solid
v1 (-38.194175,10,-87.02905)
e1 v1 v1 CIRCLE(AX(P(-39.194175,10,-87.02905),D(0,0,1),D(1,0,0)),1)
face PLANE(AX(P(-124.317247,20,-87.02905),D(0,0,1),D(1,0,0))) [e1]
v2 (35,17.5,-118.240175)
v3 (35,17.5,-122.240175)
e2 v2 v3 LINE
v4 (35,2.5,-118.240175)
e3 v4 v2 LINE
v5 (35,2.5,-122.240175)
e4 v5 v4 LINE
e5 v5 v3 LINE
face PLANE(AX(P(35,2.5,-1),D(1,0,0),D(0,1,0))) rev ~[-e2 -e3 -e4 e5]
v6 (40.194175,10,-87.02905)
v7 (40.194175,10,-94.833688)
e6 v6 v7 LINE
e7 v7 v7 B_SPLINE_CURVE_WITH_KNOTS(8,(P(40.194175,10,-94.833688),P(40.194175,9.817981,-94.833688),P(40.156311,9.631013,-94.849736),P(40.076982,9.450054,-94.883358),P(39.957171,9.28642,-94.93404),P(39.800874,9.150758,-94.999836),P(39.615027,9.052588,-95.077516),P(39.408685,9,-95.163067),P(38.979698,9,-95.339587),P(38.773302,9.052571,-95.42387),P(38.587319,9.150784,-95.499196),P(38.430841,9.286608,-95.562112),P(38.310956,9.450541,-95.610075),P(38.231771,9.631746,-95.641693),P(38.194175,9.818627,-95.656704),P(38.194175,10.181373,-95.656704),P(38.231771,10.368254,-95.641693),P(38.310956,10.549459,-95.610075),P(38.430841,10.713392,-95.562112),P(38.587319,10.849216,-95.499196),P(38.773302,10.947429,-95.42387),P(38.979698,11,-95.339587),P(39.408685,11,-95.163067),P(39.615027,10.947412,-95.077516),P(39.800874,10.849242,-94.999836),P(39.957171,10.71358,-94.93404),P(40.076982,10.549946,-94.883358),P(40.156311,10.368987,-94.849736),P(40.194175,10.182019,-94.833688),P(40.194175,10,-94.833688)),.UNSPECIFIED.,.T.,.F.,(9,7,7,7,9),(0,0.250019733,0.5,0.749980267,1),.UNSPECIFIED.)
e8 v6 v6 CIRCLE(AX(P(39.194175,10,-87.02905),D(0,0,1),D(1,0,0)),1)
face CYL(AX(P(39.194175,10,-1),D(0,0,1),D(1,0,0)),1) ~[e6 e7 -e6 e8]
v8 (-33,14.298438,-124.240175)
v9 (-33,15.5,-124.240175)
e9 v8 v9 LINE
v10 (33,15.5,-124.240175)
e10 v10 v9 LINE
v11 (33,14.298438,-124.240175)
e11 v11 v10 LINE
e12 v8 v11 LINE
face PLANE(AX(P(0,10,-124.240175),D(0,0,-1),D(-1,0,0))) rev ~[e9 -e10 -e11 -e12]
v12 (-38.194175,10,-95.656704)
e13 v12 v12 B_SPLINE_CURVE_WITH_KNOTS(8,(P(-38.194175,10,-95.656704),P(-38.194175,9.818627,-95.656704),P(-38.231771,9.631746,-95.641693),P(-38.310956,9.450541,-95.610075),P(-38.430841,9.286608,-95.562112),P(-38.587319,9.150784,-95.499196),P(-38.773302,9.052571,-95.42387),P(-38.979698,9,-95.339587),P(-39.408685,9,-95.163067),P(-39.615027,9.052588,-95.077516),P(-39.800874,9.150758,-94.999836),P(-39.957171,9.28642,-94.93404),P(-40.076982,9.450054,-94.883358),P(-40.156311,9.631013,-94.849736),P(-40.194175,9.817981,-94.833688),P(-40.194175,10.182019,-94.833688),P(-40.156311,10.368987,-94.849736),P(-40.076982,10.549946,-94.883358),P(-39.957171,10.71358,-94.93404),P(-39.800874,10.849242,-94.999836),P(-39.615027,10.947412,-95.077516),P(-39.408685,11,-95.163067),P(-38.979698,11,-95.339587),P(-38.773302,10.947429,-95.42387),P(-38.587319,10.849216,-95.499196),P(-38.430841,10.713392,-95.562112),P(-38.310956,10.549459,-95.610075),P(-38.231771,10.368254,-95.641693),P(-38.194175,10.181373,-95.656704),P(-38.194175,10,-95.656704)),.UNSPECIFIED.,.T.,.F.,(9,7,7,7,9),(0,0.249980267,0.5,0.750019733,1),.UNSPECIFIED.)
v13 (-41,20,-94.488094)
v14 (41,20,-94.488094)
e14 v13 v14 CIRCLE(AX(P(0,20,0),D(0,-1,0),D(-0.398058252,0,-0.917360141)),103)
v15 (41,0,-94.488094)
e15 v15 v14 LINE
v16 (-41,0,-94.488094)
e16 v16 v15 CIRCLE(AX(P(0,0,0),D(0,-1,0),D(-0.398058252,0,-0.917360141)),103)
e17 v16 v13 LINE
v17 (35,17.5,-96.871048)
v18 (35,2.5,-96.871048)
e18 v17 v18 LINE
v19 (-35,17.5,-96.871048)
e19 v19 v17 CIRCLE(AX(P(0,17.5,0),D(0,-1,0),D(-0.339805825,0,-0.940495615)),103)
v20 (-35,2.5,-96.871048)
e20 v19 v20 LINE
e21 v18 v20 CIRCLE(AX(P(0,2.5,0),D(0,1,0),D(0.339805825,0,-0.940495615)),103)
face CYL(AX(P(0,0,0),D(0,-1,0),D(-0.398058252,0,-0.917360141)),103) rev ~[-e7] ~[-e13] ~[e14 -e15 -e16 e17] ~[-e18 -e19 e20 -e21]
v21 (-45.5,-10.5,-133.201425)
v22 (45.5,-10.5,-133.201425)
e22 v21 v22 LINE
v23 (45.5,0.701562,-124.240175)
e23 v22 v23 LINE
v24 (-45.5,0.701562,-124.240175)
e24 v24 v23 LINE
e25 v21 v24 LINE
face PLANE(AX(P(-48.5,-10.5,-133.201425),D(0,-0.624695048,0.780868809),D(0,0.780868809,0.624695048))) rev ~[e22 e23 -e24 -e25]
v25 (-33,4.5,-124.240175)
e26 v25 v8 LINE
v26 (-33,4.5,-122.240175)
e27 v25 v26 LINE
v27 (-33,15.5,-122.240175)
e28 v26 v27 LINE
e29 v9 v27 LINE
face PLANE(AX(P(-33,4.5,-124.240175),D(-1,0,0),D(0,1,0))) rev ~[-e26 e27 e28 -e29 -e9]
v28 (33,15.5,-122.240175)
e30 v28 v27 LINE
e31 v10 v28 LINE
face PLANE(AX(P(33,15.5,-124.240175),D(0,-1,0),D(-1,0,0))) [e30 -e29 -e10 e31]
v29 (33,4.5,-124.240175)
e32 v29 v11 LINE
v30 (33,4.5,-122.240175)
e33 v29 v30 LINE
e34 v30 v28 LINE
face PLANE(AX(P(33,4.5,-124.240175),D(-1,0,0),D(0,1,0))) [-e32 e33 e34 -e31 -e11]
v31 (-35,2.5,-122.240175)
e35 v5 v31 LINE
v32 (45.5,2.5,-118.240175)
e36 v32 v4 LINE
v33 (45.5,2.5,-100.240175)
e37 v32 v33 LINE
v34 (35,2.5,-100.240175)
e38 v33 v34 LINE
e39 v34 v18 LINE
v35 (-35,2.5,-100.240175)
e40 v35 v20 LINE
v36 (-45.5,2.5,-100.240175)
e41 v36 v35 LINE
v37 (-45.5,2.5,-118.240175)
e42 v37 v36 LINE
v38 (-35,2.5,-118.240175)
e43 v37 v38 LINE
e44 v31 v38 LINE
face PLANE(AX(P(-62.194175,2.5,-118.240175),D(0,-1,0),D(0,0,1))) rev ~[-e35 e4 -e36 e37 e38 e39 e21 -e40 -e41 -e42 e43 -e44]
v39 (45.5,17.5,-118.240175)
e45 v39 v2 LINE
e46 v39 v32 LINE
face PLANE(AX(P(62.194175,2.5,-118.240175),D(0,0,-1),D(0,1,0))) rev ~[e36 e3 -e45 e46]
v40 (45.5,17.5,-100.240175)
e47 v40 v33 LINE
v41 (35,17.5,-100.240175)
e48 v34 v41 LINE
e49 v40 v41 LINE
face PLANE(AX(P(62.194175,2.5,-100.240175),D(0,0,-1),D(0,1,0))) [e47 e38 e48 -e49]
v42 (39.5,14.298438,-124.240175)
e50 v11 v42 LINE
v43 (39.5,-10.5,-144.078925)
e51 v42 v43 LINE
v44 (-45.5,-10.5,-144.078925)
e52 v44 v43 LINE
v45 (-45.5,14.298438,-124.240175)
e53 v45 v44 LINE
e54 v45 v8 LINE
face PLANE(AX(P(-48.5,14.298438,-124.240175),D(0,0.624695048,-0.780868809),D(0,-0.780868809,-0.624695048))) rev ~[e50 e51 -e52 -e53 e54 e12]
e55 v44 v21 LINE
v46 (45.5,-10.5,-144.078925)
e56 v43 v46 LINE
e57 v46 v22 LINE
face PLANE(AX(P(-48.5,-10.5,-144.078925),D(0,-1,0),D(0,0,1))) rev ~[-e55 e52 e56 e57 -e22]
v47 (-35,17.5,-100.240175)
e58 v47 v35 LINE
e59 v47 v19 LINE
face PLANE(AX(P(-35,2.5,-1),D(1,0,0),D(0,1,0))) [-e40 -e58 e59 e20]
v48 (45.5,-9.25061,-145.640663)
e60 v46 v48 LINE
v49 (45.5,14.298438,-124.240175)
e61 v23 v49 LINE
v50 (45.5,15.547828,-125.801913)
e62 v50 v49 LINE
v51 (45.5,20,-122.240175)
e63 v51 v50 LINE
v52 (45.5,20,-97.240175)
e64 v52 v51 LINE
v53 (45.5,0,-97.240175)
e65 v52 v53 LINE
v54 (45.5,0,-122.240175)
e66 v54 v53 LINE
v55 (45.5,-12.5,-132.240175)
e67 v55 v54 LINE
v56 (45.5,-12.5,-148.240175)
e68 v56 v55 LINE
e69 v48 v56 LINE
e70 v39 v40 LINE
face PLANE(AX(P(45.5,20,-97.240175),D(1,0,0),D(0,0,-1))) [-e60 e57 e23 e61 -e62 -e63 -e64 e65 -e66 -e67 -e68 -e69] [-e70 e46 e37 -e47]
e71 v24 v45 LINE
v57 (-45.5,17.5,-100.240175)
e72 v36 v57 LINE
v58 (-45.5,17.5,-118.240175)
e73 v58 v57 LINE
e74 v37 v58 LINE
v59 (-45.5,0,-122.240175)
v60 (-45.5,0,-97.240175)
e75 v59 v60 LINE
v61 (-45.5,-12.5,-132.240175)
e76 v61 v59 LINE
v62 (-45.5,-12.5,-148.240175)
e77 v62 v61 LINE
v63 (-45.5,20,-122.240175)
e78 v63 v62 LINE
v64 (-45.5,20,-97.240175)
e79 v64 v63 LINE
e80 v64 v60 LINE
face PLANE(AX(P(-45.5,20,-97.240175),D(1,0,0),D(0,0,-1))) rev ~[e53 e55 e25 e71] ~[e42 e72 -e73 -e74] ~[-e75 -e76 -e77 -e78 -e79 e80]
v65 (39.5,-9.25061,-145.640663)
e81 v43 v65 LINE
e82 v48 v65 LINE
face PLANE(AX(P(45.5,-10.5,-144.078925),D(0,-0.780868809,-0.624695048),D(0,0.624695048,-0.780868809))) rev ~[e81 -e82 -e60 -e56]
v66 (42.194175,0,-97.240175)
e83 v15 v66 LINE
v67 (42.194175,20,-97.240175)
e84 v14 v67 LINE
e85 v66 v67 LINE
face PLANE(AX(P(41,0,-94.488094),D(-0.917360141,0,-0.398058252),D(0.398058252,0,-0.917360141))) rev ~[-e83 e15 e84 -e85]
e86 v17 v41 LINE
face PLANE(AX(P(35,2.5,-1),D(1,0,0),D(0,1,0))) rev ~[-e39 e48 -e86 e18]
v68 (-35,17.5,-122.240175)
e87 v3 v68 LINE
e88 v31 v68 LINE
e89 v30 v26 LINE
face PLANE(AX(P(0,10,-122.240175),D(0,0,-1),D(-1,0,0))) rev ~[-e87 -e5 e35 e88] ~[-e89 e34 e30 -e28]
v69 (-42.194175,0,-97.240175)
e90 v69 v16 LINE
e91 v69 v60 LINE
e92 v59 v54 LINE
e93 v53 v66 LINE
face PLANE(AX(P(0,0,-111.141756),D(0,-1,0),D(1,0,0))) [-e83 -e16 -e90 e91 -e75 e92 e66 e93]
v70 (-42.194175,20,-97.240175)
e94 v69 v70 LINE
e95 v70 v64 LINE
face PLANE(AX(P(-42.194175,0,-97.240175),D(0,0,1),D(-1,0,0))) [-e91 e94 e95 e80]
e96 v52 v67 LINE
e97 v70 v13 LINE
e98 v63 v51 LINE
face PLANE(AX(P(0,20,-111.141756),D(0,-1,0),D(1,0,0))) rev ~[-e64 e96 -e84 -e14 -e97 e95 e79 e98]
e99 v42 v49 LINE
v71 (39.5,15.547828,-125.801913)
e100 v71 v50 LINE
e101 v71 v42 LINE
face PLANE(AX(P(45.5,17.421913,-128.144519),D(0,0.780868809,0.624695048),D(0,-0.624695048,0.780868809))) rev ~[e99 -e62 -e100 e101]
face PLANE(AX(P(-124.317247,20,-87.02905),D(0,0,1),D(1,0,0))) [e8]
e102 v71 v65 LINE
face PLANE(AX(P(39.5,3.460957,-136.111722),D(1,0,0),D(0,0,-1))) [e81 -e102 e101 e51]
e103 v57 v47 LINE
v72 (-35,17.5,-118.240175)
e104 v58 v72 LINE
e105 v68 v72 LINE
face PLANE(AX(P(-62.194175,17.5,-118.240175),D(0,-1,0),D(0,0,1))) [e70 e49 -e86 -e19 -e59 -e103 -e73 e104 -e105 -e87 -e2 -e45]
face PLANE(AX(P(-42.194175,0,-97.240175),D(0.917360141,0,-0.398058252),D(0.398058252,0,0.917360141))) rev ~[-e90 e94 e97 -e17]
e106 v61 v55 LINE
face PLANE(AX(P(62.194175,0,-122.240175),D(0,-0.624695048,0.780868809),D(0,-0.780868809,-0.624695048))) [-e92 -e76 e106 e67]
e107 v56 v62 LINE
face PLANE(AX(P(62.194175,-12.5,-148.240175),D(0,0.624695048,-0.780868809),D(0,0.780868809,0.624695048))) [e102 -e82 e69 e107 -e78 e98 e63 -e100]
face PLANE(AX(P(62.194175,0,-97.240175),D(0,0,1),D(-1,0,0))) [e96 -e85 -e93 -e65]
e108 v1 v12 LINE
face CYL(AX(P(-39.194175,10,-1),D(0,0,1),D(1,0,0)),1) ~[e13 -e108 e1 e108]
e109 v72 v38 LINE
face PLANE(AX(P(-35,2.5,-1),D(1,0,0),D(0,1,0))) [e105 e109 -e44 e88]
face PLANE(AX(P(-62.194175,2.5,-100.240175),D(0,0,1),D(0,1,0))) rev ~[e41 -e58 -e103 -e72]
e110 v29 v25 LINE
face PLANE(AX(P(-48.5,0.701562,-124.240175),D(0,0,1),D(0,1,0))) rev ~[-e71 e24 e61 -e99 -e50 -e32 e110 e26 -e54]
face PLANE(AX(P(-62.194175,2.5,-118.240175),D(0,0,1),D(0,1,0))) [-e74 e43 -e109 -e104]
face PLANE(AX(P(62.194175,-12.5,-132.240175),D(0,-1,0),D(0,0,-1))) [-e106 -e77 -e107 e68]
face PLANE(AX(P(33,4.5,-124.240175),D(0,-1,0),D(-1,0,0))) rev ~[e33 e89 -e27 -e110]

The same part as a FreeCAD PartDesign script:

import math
import FreeCAD as App
import Part
import Sketcher

doc = App.newDocument("Part")
body = doc.addObject("PartDesign::Body", "Body")

sketch1 = body.newObject("Sketcher::SketchObject", "Sketch")
sketch1.AttachmentSupport = (doc.getObject("XZ_Plane"), [""])
sketch1.MapMode = "FlatFace"
sketch1.addGeometry(Part.LineSegment(App.Vector(-42.2, -97.2, 0), App.Vector(-41, -94.5, 0)), False)
sketch1.addGeometry(Part.ArcOfCircle(Part.Circle(App.Vector(0, 0, 0), App.Vector(0, 0, 1), 103), math.radians(-113), math.radians(-67)), False)
sketch1.addGeometry(Part.LineSegment(App.Vector(41, -94.5, 0), App.Vector(42.2, -97.2, 0)), False)
sketch1.addGeometry(Part.ArcOfCircle(Part.Circle(App.Vector(0, 0, 0), App.Vector(0, 0, 1), 106), math.radians(-113), math.radians(-67)), False)
sketch1.addConstraint(Sketcher.Constraint("Coincident", 0, 2, 1, 1))
sketch1.addConstraint(Sketcher.Constraint("Coincident", 1, 2, 2, 1))
sketch1.addConstraint(Sketcher.Constraint("Coincident", 2, 2, 3, 2))
sketch1.addConstraint(Sketcher.Constraint("Coincident", 3, 1, 0, 1))
sketch1.addConstraint(Sketcher.Constraint("Coincident", 1, 3, -1, 1))
sketch1.addConstraint(Sketcher.Constraint("Coincident", 3, 3, -1, 1))
sketch1.addConstraint(Sketcher.Constraint("Horizontal", 0, 2, 1, 2))
sketch1.addConstraint(Sketcher.Constraint("Horizontal", 2, 2, 3, 1))
sketch1.addConstraint(Sketcher.Constraint("Radius", 1, 103.0))
sketch1.addConstraint(Sketcher.Constraint("Radius", 3, 106.0))
sketch1.addConstraint(Sketcher.Constraint("DistanceX", 0, 2, -1, 1, 41.0))
sketch1.addConstraint(Sketcher.Constraint("DistanceY", 2, 2, 1, 2, 2.75208))
pad1 = body.newObject("PartDesign::Pad", "Pad")
pad1.Profile = sketch1
pad1.Length = 20
pad1.Reversed = True
body2 = doc.addObject("PartDesign::Body", "Body001")

sketch2 = body2.newObject("Sketcher::SketchObject", "Sketch001")
sketch2.AttachmentSupport = (doc.getObject("XZ_Plane001"), [""])
sketch2.MapMode = "FlatFace"
sketch2.addGeometry(Part.LineSegment(App.Vector(-100, 0, 0), App.Vector(-100, -1, 0)), False)
sketch2.addGeometry(Part.LineSegment(App.Vector(-100, -1, 0), App.Vector(100, -1, 0)), False)
sketch2.addGeometry(Part.LineSegment(App.Vector(100, -1, 0), App.Vector(100, 0, 0)), False)
sketch2.addGeometry(Part.LineSegment(App.Vector(100, 0, 0), App.Vector(-100, 0, 0)), False)
sketch2.addConstraint(Sketcher.Constraint("Coincident", 0, 2, 1, 1))
sketch2.addConstraint(Sketcher.Constraint("Coincident", 1, 2, 2, 1))
sketch2.addConstraint(Sketcher.Constraint("Coincident", 2, 2, 3, 1))
sketch2.addConstraint(Sketcher.Constraint("Coincident", 3, 2, 0, 1))
sketch2.addConstraint(Sketcher.Constraint("Vertical", 0))
sketch2.addConstraint(Sketcher.Constraint("Horizontal", 1))
sketch2.addConstraint(Sketcher.Constraint("Vertical", 2))
sketch2.addConstraint(Sketcher.Constraint("Horizontal", 3))
sketch2.addConstraint(Sketcher.Constraint("Symmetric", 2, 2, 3, 2, -1, 1))
sketch2.addConstraint(Sketcher.Constraint("DistanceX", 1, 1, 1, 2, 200.0))
sketch2.addConstraint(Sketcher.Constraint("DistanceY", 0, 2, 0, 1, 1.0))
pad2 = body2.newObject("PartDesign::Pad", "Pad001")
pad2.Profile = sketch2
pad2.Length = 20
pad2.Reversed = True
body.AllowCompound = True
doc.recompute()

boolean = body.newObject("PartDesign::Boolean", "Boolean")
boolean.Type = "Fuse"
boolean.addObjects([body2])

sketch3 = body.newObject("Sketcher::SketchObject", "Sketch002")
sketch3.AttachmentSupport = (doc.getObject("XY_Plane"), [""])
sketch3.MapMode = "FlatFace"
sketch3.AttachmentOffset = App.Placement(App.Vector(0, 0, -1), App.Rotation())
sketch3.addGeometry(Part.Circle(App.Vector(39.2, 10, 0), App.Vector(0, 0, 1), 1), False)
sketch3.addGeometry(Part.Circle(App.Vector(-39.2, 10, 0), App.Vector(0, 0, 1), 1), False)
sketch3.addConstraint(Sketcher.Constraint("Equal", 0, 1))
sketch3.addConstraint(Sketcher.Constraint("Symmetric", 0, 3, 1, 3, -2))
sketch3.addConstraint(Sketcher.Constraint("Diameter", 0, 2.0))
sketch3.addConstraint(Sketcher.Constraint("DistanceY", -1, 1, 0, 3, 10.0))
sketch3.addConstraint(Sketcher.Constraint("DistanceX", 1, 3, 0, 3, 78.38835))
pad3 = body.newObject("PartDesign::Pad", "Pad002")
pad3.Profile = sketch3
pad3.Length = 100
pad3.Reversed = True

sketch4 = body.newObject("Sketcher::SketchObject", "Sketch003")
sketch4.AttachmentSupport = (doc.getObject("XY_Plane"), [""])
sketch4.MapMode = "FlatFace"
sketch4.AttachmentOffset = App.Placement(App.Vector(0, 0, -1), App.Rotation())
sketch4.addGeometry(Part.LineSegment(App.Vector(35, 18, 0), App.Vector(35, 2, 0)), False)
sketch4.addGeometry(Part.LineSegment(App.Vector(35, 2, 0), App.Vector(-35, 2, 0)), False)
sketch4.addGeometry(Part.LineSegment(App.Vector(-35, 2, 0), App.Vector(-35, 18, 0)), False)
sketch4.addGeometry(Part.LineSegment(App.Vector(-35, 18, 0), App.Vector(35, 18, 0)), False)
sketch4.addConstraint(Sketcher.Constraint("Coincident", 0, 2, 1, 1))
sketch4.addConstraint(Sketcher.Constraint("Coincident", 1, 2, 2, 1))
sketch4.addConstraint(Sketcher.Constraint("Coincident", 2, 2, 3, 1))
sketch4.addConstraint(Sketcher.Constraint("Coincident", 3, 2, 0, 1))
sketch4.addConstraint(Sketcher.Constraint("Vertical", 0))
sketch4.addConstraint(Sketcher.Constraint("Horizontal", 1))
sketch4.addConstraint(Sketcher.Constraint("Vertical", 2))
sketch4.addConstraint(Sketcher.Constraint("Horizontal", 3))
sketch4.addConstraint(Sketcher.Constraint("DistanceX", 1, 2, 1, 1, 70.0))
sketch4.addConstraint(Sketcher.Constraint("DistanceY", 0, 2, 0, 1, 15.0))
sketch4.addConstraint(Sketcher.Constraint("DistanceX", -1, 1, 0, 2, 35.0))
sketch4.addConstraint(Sketcher.Constraint("DistanceY", -1, 1, 0, 2, 2.5))
pocket1 = body.newObject("PartDesign::Pocket", "Pocket")
pocket1.Profile = sketch4
pocket1.Length = 150

sketch5 = body.newObject("Sketcher::SketchObject", "Sketch004")
sketch5.AttachmentSupport = (doc.getObject("XZ_Plane"), [""])
sketch5.MapMode = "FlatFace"
sketch5.AttachmentOffset = App.Placement(App.Vector(0, 0, 130), App.Rotation())
sketch5.addGeometry(Part.LineSegment(App.Vector(-49, -113, 0), App.Vector(-42, -97, 0)), False)
sketch5.addGeometry(Part.ArcOfCircle(Part.Circle(App.Vector(0, 0, 0), App.Vector(0, 0, 1), 106), math.radians(-113), math.radians(-67)), False)
sketch5.addGeometry(Part.LineSegment(App.Vector(42, -97, 0), App.Vector(52, -112, 0)), False)
sketch5.addGeometry(Part.ArcOfCircle(Part.Circle(App.Vector(0, 0, 0), App.Vector(0, 0, 1), 123), math.radians(-113), math.radians(-65)), False)
sketch5.addConstraint(Sketcher.Constraint("Coincident", 0, 2, 1, 1))
sketch5.addConstraint(Sketcher.Constraint("Coincident", 1, 2, 2, 1))
sketch5.addConstraint(Sketcher.Constraint("Coincident", 2, 2, 3, 2))
sketch5.addConstraint(Sketcher.Constraint("Coincident", 3, 1, 0, 1))
sketch5.addConstraint(Sketcher.Constraint("Coincident", 1, 3, -1, 1))
sketch5.addConstraint(Sketcher.Constraint("Coincident", 3, 3, -1, 1))
sketch5.addConstraint(Sketcher.Constraint("Horizontal", 0, 2, 1, 2))
sketch5.addConstraint(Sketcher.Constraint("Radius", 1, 106.0))
sketch5.addConstraint(Sketcher.Constraint("Radius", 3, 123.498831))
sketch5.addConstraint(Sketcher.Constraint("DistanceX", 3, 1, 1, 2, 91.252102))
sketch5.addConstraint(Sketcher.Constraint("Distance", 2, 17.677209))
sketch5.addConstraint(Sketcher.Constraint("DistanceX", -1, 1, 2, 2, 51.628142))
pocket2 = body.newObject("PartDesign::Pocket", "Pocket001")
pocket2.Profile = sketch5
pocket2.Length = 150

sketch6 = body.newObject("Sketcher::SketchObject", "Sketch005")
sketch6.AttachmentSupport = (doc.getObject("XZ_Plane"), [""])
sketch6.MapMode = "FlatFace"
sketch6.addGeometry(Part.LineSegment(App.Vector(-42, -97, 0), App.Vector(-62, -97, 0)), False)
sketch6.addGeometry(Part.LineSegment(App.Vector(-62, -97, 0), App.Vector(-62, -122, 0)), False)
sketch6.addGeometry(Part.LineSegment(App.Vector(-62, -122, 0), App.Vector(62, -122, 0)), False)
sketch6.addGeometry(Part.LineSegment(App.Vector(62, -122, 0), App.Vector(62, -97, 0)), False)
sketch6.addGeometry(Part.LineSegment(App.Vector(62, -97, 0), App.Vector(42, -97, 0)), False)
sketch6.addGeometry(Part.ArcOfCircle(Part.Circle(App.Vector(0, 0, 0), App.Vector(0, 0, 1), 106), math.radians(-113), math.radians(-67)), False)
sketch6.addConstraint(Sketcher.Constraint("Coincident", 0, 2, 1, 1))
sketch6.addConstraint(Sketcher.Constraint("Coincident", 1, 2, 2, 1))
sketch6.addConstraint(Sketcher.Constraint("Coincident", 2, 2, 3, 1))
sketch6.addConstraint(Sketcher.Constraint("Coincident", 3, 2, 4, 1))
sketch6.addConstraint(Sketcher.Constraint("Coincident", 4, 2, 5, 2))
sketch6.addConstraint(Sketcher.Constraint("Coincident", 5, 1, 0, 1))
sketch6.addConstraint(Sketcher.Constraint("Horizontal", 0))
sketch6.addConstraint(Sketcher.Constraint("Vertical", 1))
sketch6.addConstraint(Sketcher.Constraint("Horizontal", 2))
sketch6.addConstraint(Sketcher.Constraint("Vertical", 3))
sketch6.addConstraint(Sketcher.Constraint("Horizontal", 4))
sketch6.addConstraint(Sketcher.Constraint("Coincident", 5, 3, -1, 1))
sketch6.addConstraint(Sketcher.Constraint("Symmetric", 0, 2, 3, 2, -2))
sketch6.addConstraint(Sketcher.Constraint("Radius", 5, 106.0))
sketch6.addConstraint(Sketcher.Constraint("DistanceX", 0, 2, 0, 1, 20.0))
sketch6.addConstraint(Sketcher.Constraint("DistanceY", 1, 2, 1, 1, 25.0))
sketch6.addConstraint(Sketcher.Constraint("DistanceX", 2, 1, 2, 2, 124.38835))
pad4 = body.newObject("PartDesign::Pad", "Pad003")
pad4.Profile = sketch6
pad4.Length = 20
pad4.Reversed = True

sketch7 = body.newObject("Sketcher::SketchObject", "Sketch006")
sketch7.AttachmentSupport = (doc.getObject("XY_Plane"), [""])
sketch7.MapMode = "FlatFace"
sketch7.AttachmentOffset = App.Placement(App.Vector(0, 0, -122.240175), App.Rotation())
sketch7.addGeometry(Part.LineSegment(App.Vector(35, 18, 0), App.Vector(35, 2, 0)), False)
sketch7.addGeometry(Part.LineSegment(App.Vector(35, 2, 0), App.Vector(-35, 2, 0)), False)
sketch7.addGeometry(Part.LineSegment(App.Vector(-35, 2, 0), App.Vector(-35, 18, 0)), False)
sketch7.addGeometry(Part.LineSegment(App.Vector(-35, 18, 0), App.Vector(35, 18, 0)), False)
sketch7.addConstraint(Sketcher.Constraint("Coincident", 0, 2, 1, 1))
sketch7.addConstraint(Sketcher.Constraint("Coincident", 1, 2, 2, 1))
sketch7.addConstraint(Sketcher.Constraint("Coincident", 2, 2, 3, 1))
sketch7.addConstraint(Sketcher.Constraint("Coincident", 3, 2, 0, 1))
sketch7.addConstraint(Sketcher.Constraint("Vertical", 0))
sketch7.addConstraint(Sketcher.Constraint("Horizontal", 1))
sketch7.addConstraint(Sketcher.Constraint("Vertical", 2))
sketch7.addConstraint(Sketcher.Constraint("Horizontal", 3))
sketch7.addConstraint(Sketcher.Constraint("DistanceX", 1, 2, 1, 1, 70.0))
sketch7.addConstraint(Sketcher.Constraint("DistanceY", 0, 2, 0, 1, 15.0))
sketch7.addConstraint(Sketcher.Constraint("DistanceX", -1, 1, 0, 2, 35.0))
sketch7.addConstraint(Sketcher.Constraint("DistanceY", -1, 1, 0, 2, 2.5))
pocket3 = body.newObject("PartDesign::Pocket", "Pocket002")
pocket3.Profile = sketch7
pocket3.Length = 50
pocket3.Reversed = True

sketch8 = body.newObject("Sketcher::SketchObject", "Sketch007")
sketch8.AttachmentSupport = (doc.getObject("YZ_Plane"), [""])
sketch8.MapMode = "FlatFace"
sketch8.AttachmentOffset = App.Placement(App.Vector(0, 0, -62.194175), App.Rotation())
sketch8.addGeometry(Part.LineSegment(App.Vector(18, -118, 0), App.Vector(2, -118, 0)), False)
sketch8.addGeometry(Part.LineSegment(App.Vector(2, -118, 0), App.Vector(2, -100, 0)), False)
sketch8.addGeometry(Part.LineSegment(App.Vector(2, -100, 0), App.Vector(18, -100, 0)), False)
sketch8.addGeometry(Part.LineSegment(App.Vector(18, -100, 0), App.Vector(18, -118, 0)), False)
sketch8.addConstraint(Sketcher.Constraint("Coincident", 0, 2, 1, 1))
sketch8.addConstraint(Sketcher.Constraint("Coincident", 1, 2, 2, 1))
sketch8.addConstraint(Sketcher.Constraint("Coincident", 2, 2, 3, 1))
sketch8.addConstraint(Sketcher.Constraint("Coincident", 3, 2, 0, 1))
sketch8.addConstraint(Sketcher.Constraint("Horizontal", 0))
sketch8.addConstraint(Sketcher.Constraint("Vertical", 1))
sketch8.addConstraint(Sketcher.Constraint("Horizontal", 2))
sketch8.addConstraint(Sketcher.Constraint("Vertical", 3))
sketch8.addConstraint(Sketcher.Constraint("DistanceX", 0, 2, 0, 1, 15.0))
sketch8.addConstraint(Sketcher.Constraint("DistanceY", 1, 1, 1, 2, 18.0))
sketch8.addConstraint(Sketcher.Constraint("DistanceX", -1, 1, 0, 2, 2.5))
sketch8.addConstraint(Sketcher.Constraint("DistanceY", 0, 2, -1, 1, 118.240175))
pocket4 = body.newObject("PartDesign::Pocket", "Pocket003")
pocket4.Profile = sketch8
pocket4.Length = 50
pocket4.Reversed = True

sketch9 = body.newObject("Sketcher::SketchObject", "Sketch008")
sketch9.AttachmentSupport = (doc.getObject("YZ_Plane"), [""])
sketch9.MapMode = "FlatFace"
sketch9.AttachmentOffset = App.Placement(App.Vector(0, 0, 62.194175), App.Rotation())
sketch9.addGeometry(Part.LineSegment(App.Vector(18, -100, 0), App.Vector(2, -100, 0)), False)
sketch9.addGeometry(Part.LineSegment(App.Vector(2, -100, 0), App.Vector(2, -118, 0)), False)
sketch9.addGeometry(Part.LineSegment(App.Vector(2, -118, 0), App.Vector(18, -118, 0)), False)
sketch9.addGeometry(Part.LineSegment(App.Vector(18, -118, 0), App.Vector(18, -100, 0)), False)
sketch9.addConstraint(Sketcher.Constraint("Coincident", 0, 2, 1, 1))
sketch9.addConstraint(Sketcher.Constraint("Coincident", 1, 2, 2, 1))
sketch9.addConstraint(Sketcher.Constraint("Coincident", 2, 2, 3, 1))
sketch9.addConstraint(Sketcher.Constraint("Coincident", 3, 2, 0, 1))
sketch9.addConstraint(Sketcher.Constraint("Horizontal", 0))
sketch9.addConstraint(Sketcher.Constraint("Vertical", 1))
sketch9.addConstraint(Sketcher.Constraint("Horizontal", 2))
sketch9.addConstraint(Sketcher.Constraint("Vertical", 3))
sketch9.addConstraint(Sketcher.Constraint("DistanceX", 0, 2, 0, 1, 15.0))
sketch9.addConstraint(Sketcher.Constraint("DistanceY", 1, 2, 1, 1, 18.0))
sketch9.addConstraint(Sketcher.Constraint("DistanceX", -1, 1, 0, 2, 2.5))
sketch9.addConstraint(Sketcher.Constraint("DistanceY", 0, 2, -1, 1, 100.240175))
pocket5 = body.newObject("PartDesign::Pocket", "Pocket004")
pocket5.Profile = sketch9
pocket5.Length = 50

sketch10 = body.newObject("Sketcher::SketchObject", "Sketch009")
sketch10.AttachmentSupport = (doc.getObject("XZ_Plane"), [""])
sketch10.MapMode = "FlatFace"
sketch10.AttachmentOffset = App.Placement(App.Vector(0, 0, -20), App.Rotation())
sketch10.addGeometry(Part.LineSegment(App.Vector(-124, -87, 0), App.Vector(-124, 14, 0)), False)
sketch10.addGeometry(Part.LineSegment(App.Vector(-124, 14, 0), App.Vector(117, 14, 0)), False)
sketch10.addGeometry(Part.LineSegment(App.Vector(117, 14, 0), App.Vector(117, -87, 0)), False)
sketch10.addGeometry(Part.LineSegment(App.Vector(117, -87, 0), App.Vector(-124, -87, 0)), False)
sketch10.addConstraint(Sketcher.Constraint("Coincident", 0, 2, 1, 1))
sketch10.addConstraint(Sketcher.Constraint("Coincident", 1, 2, 2, 1))
sketch10.addConstraint(Sketcher.Constraint("Coincident", 2, 2, 3, 1))
sketch10.addConstraint(Sketcher.Constraint("Coincident", 3, 2, 0, 1))
sketch10.addConstraint(Sketcher.Constraint("Vertical", 0))
sketch10.addConstraint(Sketcher.Constraint("Horizontal", 1))
sketch10.addConstraint(Sketcher.Constraint("Vertical", 2))
sketch10.addConstraint(Sketcher.Constraint("Horizontal", 3))
sketch10.addConstraint(Sketcher.Constraint("DistanceX", 1, 1, 1, 2, 241.247931))
sketch10.addConstraint(Sketcher.Constraint("DistanceY", 0, 1, 0, 2, 101.321344))
sketch10.addConstraint(Sketcher.Constraint("DistanceY", 2, 2, -1, 1, 87.02905))
sketch10.addConstraint(Sketcher.Constraint("DistanceX", 0, 2, -1, 1, 124.317247))
pocket6 = body.newObject("PartDesign::Pocket", "Pocket005")
pocket6.Profile = sketch10
pocket6.Length = 50
pocket6.Reversed = True

sketch11 = body.newObject("Sketcher::SketchObject", "Sketch010")
sketch11.AttachmentSupport = (doc.getObject("XY_Plane"), [""])
sketch11.MapMode = "FlatFace"
sketch11.AttachmentOffset = App.Placement(App.Vector(0, 0, -122.240175), App.Rotation())
sketch11.addGeometry(Part.LineSegment(App.Vector(62, 32, 0), App.Vector(62, -12, 0)), False)
sketch11.addGeometry(Part.LineSegment(App.Vector(62, -12, 0), App.Vector(-62, -12, 0)), False)
sketch11.addGeometry(Part.LineSegment(App.Vector(-62, -12, 0), App.Vector(-62, 32, 0)), False)
sketch11.addGeometry(Part.LineSegment(App.Vector(-62, 32, 0), App.Vector(62, 32, 0)), False)
sketch11.addConstraint(Sketcher.Constraint("Coincident", 0, 2, 1, 1))
sketch11.addConstraint(Sketcher.Constraint("Coincident", 1, 2, 2, 1))
sketch11.addConstraint(Sketcher.Constraint("Coincident", 2, 2, 3, 1))
sketch11.addConstraint(Sketcher.Constraint("Coincident", 3, 2, 0, 1))
sketch11.addConstraint(Sketcher.Constraint("Vertical", 0))
sketch11.addConstraint(Sketcher.Constraint("Horizontal", 1))
sketch11.addConstraint(Sketcher.Constraint("Vertical", 2))
sketch11.addConstraint(Sketcher.Constraint("Horizontal", 3))
sketch11.addConstraint(Sketcher.Constraint("DistanceY", 0, 2, 0, 1, 45.0))
sketch11.addConstraint(Sketcher.Constraint("DistanceY", 0, 2, -1, 1, 12.5))
sketch11.addConstraint(Sketcher.Constraint("DistanceX", 1, 2, 1, 1, 124.38835))
sketch11.addConstraint(Sketcher.Constraint("DistanceX", -1, 1, 0, 2, 62.194175))
pad5 = body.newObject("PartDesign::Pad", "Pad004")
pad5.Profile = sketch11
pad5.Length = 10
pad5.Reversed = True

sketch12 = body.newObject("Sketcher::SketchObject", "Sketch011")
sketch12.AttachmentSupport = (doc.getObject("YZ_Plane"), [""])
sketch12.MapMode = "FlatFace"
sketch12.AttachmentOffset = App.Placement(App.Vector(0, 0, 62.194175), App.Rotation())
sketch12.addGeometry(Part.LineSegment(App.Vector(20, -122, 0), App.Vector(32, -132, 0)), False)
sketch12.addGeometry(Part.LineSegment(App.Vector(32, -132, 0), App.Vector(32, -122, 0)), False)
sketch12.addGeometry(Part.LineSegment(App.Vector(32, -122, 0), App.Vector(20, -122, 0)), False)
sketch12.addGeometry(Part.LineSegment(App.Vector(-12, -132, 0), App.Vector(0, -122, 0)), False)
sketch12.addGeometry(Part.LineSegment(App.Vector(0, -122, 0), App.Vector(-12, -122, 0)), False)
sketch12.addGeometry(Part.LineSegment(App.Vector(-12, -122, 0), App.Vector(-12, -132, 0)), False)
sketch12.addConstraint(Sketcher.Constraint("Coincident", 0, 2, 1, 1))
sketch12.addConstraint(Sketcher.Constraint("Coincident", 1, 2, 2, 1))
sketch12.addConstraint(Sketcher.Constraint("Coincident", 2, 2, 0, 1))
sketch12.addConstraint(Sketcher.Constraint("Coincident", 3, 2, 4, 1))
sketch12.addConstraint(Sketcher.Constraint("Coincident", 4, 2, 5, 1))
sketch12.addConstraint(Sketcher.Constraint("Coincident", 5, 2, 3, 1))
sketch12.addConstraint(Sketcher.Constraint("Vertical", 1))
sketch12.addConstraint(Sketcher.Constraint("Horizontal", 2))
sketch12.addConstraint(Sketcher.Constraint("Horizontal", 4))
sketch12.addConstraint(Sketcher.Constraint("Vertical", 5))
sketch12.addConstraint(Sketcher.Constraint("PointOnObject", 3, 2, -2))
sketch12.addConstraint(Sketcher.Constraint("Horizontal", 2, 2, 3, 2))
sketch12.addConstraint(Sketcher.Constraint("Horizontal", 0, 2, 5, 2))
sketch12.addConstraint(Sketcher.Constraint("Equal", 2, 4))
sketch12.addConstraint(Sketcher.Constraint("DistanceY", 1, 1, 1, 2, 10.0))
sketch12.addConstraint(Sketcher.Constraint("DistanceX", 2, 2, 2, 1, 12.5))
sketch12.addConstraint(Sketcher.Constraint("DistanceX", -1, 1, 2, 2, 20.0))
sketch12.addConstraint(Sketcher.Constraint("DistanceY", 0, 2, -1, 1, 132.240175))
pocket7 = body.newObject("PartDesign::Pocket", "Pocket006")
pocket7.Profile = sketch12
pocket7.Length = 200

sketch13 = body.newObject("Sketcher::SketchObject", "Sketch012")
sketch13.AttachmentSupport = (doc.getObject("YZ_Plane"), [""])
sketch13.MapMode = "FlatFace"
sketch13.AttachmentOffset = App.Placement(App.Vector(0, 0, 62.194175), App.Rotation())
sketch13.addGeometry(Part.LineSegment(App.Vector(0, -122, 0), App.Vector(-12, -132, 0)), False)
sketch13.addGeometry(Part.LineSegment(App.Vector(-12, -132, 0), App.Vector(-12, -148, 0)), False)
sketch13.addGeometry(Part.LineSegment(App.Vector(-12, -148, 0), App.Vector(20, -122, 0)), False)
sketch13.addGeometry(Part.LineSegment(App.Vector(20, -122, 0), App.Vector(0, -122, 0)), False)
sketch13.addConstraint(Sketcher.Constraint("Coincident", 0, 2, 1, 1))
sketch13.addConstraint(Sketcher.Constraint("Coincident", 1, 2, 2, 1))
sketch13.addConstraint(Sketcher.Constraint("Coincident", 2, 2, 3, 1))
sketch13.addConstraint(Sketcher.Constraint("Coincident", 3, 2, 0, 1))
sketch13.addConstraint(Sketcher.Constraint("Vertical", 1))
sketch13.addConstraint(Sketcher.Constraint("Horizontal", 3))
sketch13.addConstraint(Sketcher.Constraint("PointOnObject", 3, 2, -2))
sketch13.addConstraint(Sketcher.Constraint("Parallel", 0, 2))
sketch13.addConstraint(Sketcher.Constraint("DistanceX", 3, 2, 3, 1, 20.0))
sketch13.addConstraint(Sketcher.Constraint("DistanceY", 1, 2, 1, 1, 16.0))
sketch13.addConstraint(Sketcher.Constraint("DistanceY", 0, 2, 2, 2, 10.0))
sketch13.addConstraint(Sketcher.Constraint("DistanceY", 0, 2, -1, 1, 132.240175))
pad6 = body.newObject("PartDesign::Pad", "Pad005")
pad6.Profile = sketch13
pad6.Length = 124.5
pad6.Reversed = True

sketch14 = body.newObject("Sketcher::SketchObject", "Sketch013")
sketch14.AttachmentSupport = (doc.getObject("YZ_Plane"), [""])
sketch14.MapMode = "FlatFace"
sketch14.AttachmentOffset = App.Placement(App.Vector(0, 0, 62.194175), App.Rotation())
sketch14.addGeometry(Part.LineSegment(App.Vector(20, -122, 0), App.Vector(8, -132, 0)), False)
sketch14.addGeometry(Part.LineSegment(App.Vector(8, -132, 0), App.Vector(32, -132, 0)), False)
sketch14.addGeometry(Part.LineSegment(App.Vector(32, -132, 0), App.Vector(20, -122, 0)), False)
sketch14.addConstraint(Sketcher.Constraint("Coincident", 0, 2, 1, 1))
sketch14.addConstraint(Sketcher.Constraint("Coincident", 1, 2, 2, 1))
sketch14.addConstraint(Sketcher.Constraint("Coincident", 2, 2, 0, 1))
sketch14.addConstraint(Sketcher.Constraint("Horizontal", 1))
sketch14.addConstraint(Sketcher.Constraint("Equal", 0, 2))
sketch14.addConstraint(Sketcher.Constraint("DistanceX", 1, 1, 1, 2, 25.0))
sketch14.addConstraint(Sketcher.Constraint("DistanceX", -1, 1, 2, 2, 20.0))
sketch14.addConstraint(Sketcher.Constraint("DistanceY", 0, 2, 2, 2, 10.0))
sketch14.addConstraint(Sketcher.Constraint("DistanceY", 0, 2, -1, 1, 132.240175))
pocket8 = body.newObject("PartDesign::Pocket", "Pocket007")
pocket8.Profile = sketch14
pocket8.Length = 134.5

sketch15 = body.newObject("Sketcher::SketchObject", "Sketch014")
sketch15.AttachmentSupport = (doc.getObject("XZ_Plane"), [""])
sketch15.MapMode = "FlatFace"
sketch15.AttachmentOffset = App.Placement(App.Vector(0, 0, -20), App.Rotation())
sketch15.addGeometry(Part.LineSegment(App.Vector(49, -148, 0), App.Vector(49, -97, 0)), False)
sketch15.addGeometry(Part.LineSegment(App.Vector(49, -97, 0), App.Vector(62, -97, 0)), False)
sketch15.addGeometry(Part.LineSegment(App.Vector(62, -97, 0), App.Vector(62, -148, 0)), False)
sketch15.addGeometry(Part.LineSegment(App.Vector(62, -148, 0), App.Vector(49, -148, 0)), False)
sketch15.addGeometry(Part.LineSegment(App.Vector(-62, -148, 0), App.Vector(-62, -97, 0)), False)
sketch15.addGeometry(Part.LineSegment(App.Vector(-62, -97, 0), App.Vector(-49, -97, 0)), False)
sketch15.addGeometry(Part.LineSegment(App.Vector(-49, -97, 0), App.Vector(-49, -148, 0)), False)
sketch15.addGeometry(Part.LineSegment(App.Vector(-49, -148, 0), App.Vector(-62, -148, 0)), False)
sketch15.addConstraint(Sketcher.Constraint("Coincident", 0, 2, 1, 1))
sketch15.addConstraint(Sketcher.Constraint("Coincident", 1, 2, 2, 1))
sketch15.addConstraint(Sketcher.Constraint("Coincident", 2, 2, 3, 1))
sketch15.addConstraint(Sketcher.Constraint("Coincident", 3, 2, 0, 1))
sketch15.addConstraint(Sketcher.Constraint("Coincident", 4, 2, 5, 1))
sketch15.addConstraint(Sketcher.Constraint("Coincident", 5, 2, 6, 1))
sketch15.addConstraint(Sketcher.Constraint("Coincident", 6, 2, 7, 1))
sketch15.addConstraint(Sketcher.Constraint("Coincident", 7, 2, 4, 1))
sketch15.addConstraint(Sketcher.Constraint("Vertical", 0))
sketch15.addConstraint(Sketcher.Constraint("Horizontal", 1))
sketch15.addConstraint(Sketcher.Constraint("Vertical", 2))
sketch15.addConstraint(Sketcher.Constraint("Horizontal", 3))
sketch15.addConstraint(Sketcher.Constraint("Vertical", 4))
sketch15.addConstraint(Sketcher.Constraint("Horizontal", 5))
sketch15.addConstraint(Sketcher.Constraint("Vertical", 6))
sketch15.addConstraint(Sketcher.Constraint("Horizontal", 7))
sketch15.addConstraint(Sketcher.Constraint("Symmetric", 0, 2, 5, 2, -2))
sketch15.addConstraint(Sketcher.Constraint("Horizontal", 3, 2, 6, 2))
sketch15.addConstraint(Sketcher.Constraint("DistanceY", 0, 1, 0, 2, 51.0))
sketch15.addConstraint(Sketcher.Constraint("DistanceX", 5, 2, 0, 2, 97.0))
sketch15.addConstraint(Sketcher.Constraint("DistanceX", 4, 2, 1, 2, 124.5))
sketch15.addConstraint(Sketcher.Constraint("DistanceX", 1, 1, 1, 2, 13.694175))
sketch15.addConstraint(Sketcher.Constraint("DistanceY", 0, 2, -1, 1, 97.240175))
pocket9 = body.newObject("PartDesign::Pocket", "Pocket008")
pocket9.Profile = sketch15
pocket9.Length = 40
pocket9.Reversed = True

sketch16 = body.newObject("Sketcher::SketchObject", "Sketch015")
sketch16.AttachmentSupport = (doc.getObject("YZ_Plane"), [""])
sketch16.MapMode = "FlatFace"
sketch16.AttachmentOffset = App.Placement(App.Vector(0, 0, -48.5), App.Rotation())
sketch16.addGeometry(Part.LineSegment(App.Vector(14, -124, 0), App.Vector(-10, -144, 0)), False)
sketch16.addGeometry(Part.LineSegment(App.Vector(-10, -144, 0), App.Vector(-10, -133, 0)), False)
sketch16.addGeometry(Part.LineSegment(App.Vector(-10, -133, 0), App.Vector(1, -124, 0)), False)
sketch16.addGeometry(Part.LineSegment(App.Vector(1, -124, 0), App.Vector(14, -124, 0)), False)
sketch16.addConstraint(Sketcher.Constraint("Coincident", 0, 2, 1, 1))
sketch16.addConstraint(Sketcher.Constraint("Coincident", 1, 2, 2, 1))
sketch16.addConstraint(Sketcher.Constraint("Coincident", 2, 2, 3, 1))
sketch16.addConstraint(Sketcher.Constraint("Coincident", 3, 2, 0, 1))
sketch16.addConstraint(Sketcher.Constraint("Vertical", 1))
sketch16.addConstraint(Sketcher.Constraint("Horizontal", 3))
sketch16.addConstraint(Sketcher.Constraint("Parallel", 0, 2))
sketch16.addConstraint(Sketcher.Constraint("DistanceX", 0, 2, -1, 1, 10.5))
sketch16.addConstraint(Sketcher.Constraint("Distance", 2, 14.344999))
sketch16.addConstraint(Sketcher.Constraint("DistanceY", 1, 1, 1, 2, 10.877501))
sketch16.addConstraint(Sketcher.Constraint("DistanceX", 3, 1, 3, 2, 13.596876))
sketch16.addConstraint(Sketcher.Constraint("DistanceY", 0, 2, -1, 1, 144.078925))
pocket10 = body.newObject("PartDesign::Pocket", "Pocket009")
pocket10.Profile = sketch16
pocket10.Length = 120
pocket10.Reversed = True

sketch17 = body.newObject("Sketcher::SketchObject", "Sketch016")
sketch17.AttachmentSupport = (doc.getObject("XY_Plane"), [""])
sketch17.MapMode = "FlatFace"
sketch17.AttachmentOffset = App.Placement(App.Vector(0, 0, -124.240175), App.Rotation())
sketch17.addGeometry(Part.LineSegment(App.Vector(33, 16, 0), App.Vector(33, 4, 0)), False)
sketch17.addGeometry(Part.LineSegment(App.Vector(33, 4, 0), App.Vector(-33, 4, 0)), False)
sketch17.addGeometry(Part.LineSegment(App.Vector(-33, 4, 0), App.Vector(-33, 16, 0)), False)
sketch17.addGeometry(Part.LineSegment(App.Vector(-33, 16, 0), App.Vector(33, 16, 0)), False)
sketch17.addConstraint(Sketcher.Constraint("Coincident", 0, 2, 1, 1))
sketch17.addConstraint(Sketcher.Constraint("Coincident", 1, 2, 2, 1))
sketch17.addConstraint(Sketcher.Constraint("Coincident", 2, 2, 3, 1))
sketch17.addConstraint(Sketcher.Constraint("Coincident", 3, 2, 0, 1))
sketch17.addConstraint(Sketcher.Constraint("Vertical", 0))
sketch17.addConstraint(Sketcher.Constraint("Horizontal", 1))
sketch17.addConstraint(Sketcher.Constraint("Vertical", 2))
sketch17.addConstraint(Sketcher.Constraint("Horizontal", 3))
sketch17.addConstraint(Sketcher.Constraint("DistanceX", 1, 2, 1, 1, 66.0))
sketch17.addConstraint(Sketcher.Constraint("DistanceY", 0, 2, 0, 1, 11.0))
sketch17.addConstraint(Sketcher.Constraint("DistanceX", -1, 1, 0, 2, 33.0))
sketch17.addConstraint(Sketcher.Constraint("DistanceY", -1, 1, 0, 2, 4.5))
pocket11 = body.newObject("PartDesign::Pocket", "Pocket010")
pocket11.Profile = sketch17
pocket11.Length = 120
pocket11.Reversed = True

sketch18 = body.newObject("Sketcher::SketchObject", "Sketch017")
sketch18.AttachmentSupport = (doc.getObject("XZ_Plane"), [""])
sketch18.MapMode = "FlatFace"
sketch18.AttachmentOffset = App.Placement(App.Vector(0, 0, -20), App.Rotation())
sketch18.addGeometry(Part.LineSegment(App.Vector(-48.5, -148.2, 0), App.Vector(-48.5, -97.2, 0)), False)
sketch18.addGeometry(Part.LineSegment(App.Vector(-48.5, -97.2, 0), App.Vector(-45.5, -97.2, 0)), False)
sketch18.addGeometry(Part.LineSegment(App.Vector(-45.5, -97.2, 0), App.Vector(-45.5, -148.2, 0)), False)
sketch18.addGeometry(Part.LineSegment(App.Vector(-45.5, -148.2, 0), App.Vector(-48.5, -148.2, 0)), False)
sketch18.addGeometry(Part.LineSegment(App.Vector(45.5, -148.2, 0), App.Vector(45.5, -97.2, 0)), False)
sketch18.addGeometry(Part.LineSegment(App.Vector(45.5, -97.2, 0), App.Vector(48.5, -97.2, 0)), False)
sketch18.addGeometry(Part.LineSegment(App.Vector(48.5, -97.2, 0), App.Vector(48.5, -148.2, 0)), False)
sketch18.addGeometry(Part.LineSegment(App.Vector(48.5, -148.2, 0), App.Vector(45.5, -148.2, 0)), False)
sketch18.addConstraint(Sketcher.Constraint("Coincident", 0, 2, 1, 1))
sketch18.addConstraint(Sketcher.Constraint("Coincident", 1, 2, 2, 1))
sketch18.addConstraint(Sketcher.Constraint("Coincident", 2, 2, 3, 1))
sketch18.addConstraint(Sketcher.Constraint("Coincident", 3, 2, 0, 1))
sketch18.addConstraint(Sketcher.Constraint("Coincident", 4, 2, 5, 1))
sketch18.addConstraint(Sketcher.Constraint("Coincident", 5, 2, 6, 1))
sketch18.addConstraint(Sketcher.Constraint("Coincident", 6, 2, 7, 1))
sketch18.addConstraint(Sketcher.Constraint("Coincident", 7, 2, 4, 1))
sketch18.addConstraint(Sketcher.Constraint("Vertical", 0))
sketch18.addConstraint(Sketcher.Constraint("Horizontal", 1))
sketch18.addConstraint(Sketcher.Constraint("Vertical", 2))
sketch18.addConstraint(Sketcher.Constraint("Horizontal", 3))
sketch18.addConstraint(Sketcher.Constraint("Vertical", 4))
sketch18.addConstraint(Sketcher.Constraint("Horizontal", 5))
sketch18.addConstraint(Sketcher.Constraint("Vertical", 6))
sketch18.addConstraint(Sketcher.Constraint("Horizontal", 7))
sketch18.addConstraint(Sketcher.Constraint("Symmetric", 1, 2, 4, 2, -2))
sketch18.addConstraint(Sketcher.Constraint("Symmetric", 3, 2, 6, 2, -2))
sketch18.addConstraint(Sketcher.Constraint("DistanceX", 1, 1, 1, 2, 3.0))
sketch18.addConstraint(Sketcher.Constraint("DistanceY", 0, 1, 0, 2, 51.0))
sketch18.addConstraint(Sketcher.Constraint("DistanceX", 1, 2, 4, 2, 91.0))
sketch18.addConstraint(Sketcher.Constraint("DistanceY", 0, 2, -1, 1, 97.240175))
pocket12 = body.newObject("PartDesign::Pocket", "Pocket011")
pocket12.Profile = sketch18
pocket12.Length = 120
pocket12.Reversed = True

sketch19 = body.newObject("Sketcher::SketchObject", "Sketch018")
sketch19.AttachmentSupport = (doc.getObject("YZ_Plane"), [""])
sketch19.MapMode = "FlatFace"
sketch19.AttachmentOffset = App.Placement(App.Vector(0, 0, 45.5), App.Rotation())
sketch19.addGeometry(Part.LineSegment(App.Vector(14.3, -124.2, 0), App.Vector(-10.5, -144.1, 0)), False)
sketch19.addGeometry(Part.LineSegment(App.Vector(-10.5, -144.1, 0), App.Vector(-7.4, -148, 0)), False)
sketch19.addGeometry(Part.LineSegment(App.Vector(-7.4, -148, 0), App.Vector(17.4, -128.1, 0)), False)
sketch19.addGeometry(Part.LineSegment(App.Vector(17.4, -128.1, 0), App.Vector(14.3, -124.2, 0)), False)
sketch19.addConstraint(Sketcher.Constraint("Coincident", 0, 2, 1, 1))
sketch19.addConstraint(Sketcher.Constraint("Coincident", 1, 2, 2, 1))
sketch19.addConstraint(Sketcher.Constraint("Coincident", 2, 2, 3, 1))
sketch19.addConstraint(Sketcher.Constraint("Coincident", 3, 2, 0, 1))
sketch19.addConstraint(Sketcher.Constraint("Perpendicular", 0, 1))
sketch19.addConstraint(Sketcher.Constraint("Perpendicular", 1, 2))
sketch19.addConstraint(Sketcher.Constraint("Perpendicular", 2, 3))
sketch19.addConstraint(Sketcher.Constraint("Distance", 1, 5.0))
sketch19.addConstraint(Sketcher.Constraint("DistanceX", 0, 2, -1, 1, 10.5))
sketch19.addConstraint(Sketcher.Constraint("DistanceY", 1, 2, -1, 1, 147.983269))
sketch19.addConstraint(Sketcher.Constraint("DistanceY", 2, 2, -1, 1, 128.144519))
sketch19.addConstraint(Sketcher.Constraint("Distance", 0, 31.757496))
pocket13 = body.newObject("PartDesign::Pocket", "Pocket012")
pocket13.Profile = sketch19
pocket13.Length = 6

doc.recompute()
